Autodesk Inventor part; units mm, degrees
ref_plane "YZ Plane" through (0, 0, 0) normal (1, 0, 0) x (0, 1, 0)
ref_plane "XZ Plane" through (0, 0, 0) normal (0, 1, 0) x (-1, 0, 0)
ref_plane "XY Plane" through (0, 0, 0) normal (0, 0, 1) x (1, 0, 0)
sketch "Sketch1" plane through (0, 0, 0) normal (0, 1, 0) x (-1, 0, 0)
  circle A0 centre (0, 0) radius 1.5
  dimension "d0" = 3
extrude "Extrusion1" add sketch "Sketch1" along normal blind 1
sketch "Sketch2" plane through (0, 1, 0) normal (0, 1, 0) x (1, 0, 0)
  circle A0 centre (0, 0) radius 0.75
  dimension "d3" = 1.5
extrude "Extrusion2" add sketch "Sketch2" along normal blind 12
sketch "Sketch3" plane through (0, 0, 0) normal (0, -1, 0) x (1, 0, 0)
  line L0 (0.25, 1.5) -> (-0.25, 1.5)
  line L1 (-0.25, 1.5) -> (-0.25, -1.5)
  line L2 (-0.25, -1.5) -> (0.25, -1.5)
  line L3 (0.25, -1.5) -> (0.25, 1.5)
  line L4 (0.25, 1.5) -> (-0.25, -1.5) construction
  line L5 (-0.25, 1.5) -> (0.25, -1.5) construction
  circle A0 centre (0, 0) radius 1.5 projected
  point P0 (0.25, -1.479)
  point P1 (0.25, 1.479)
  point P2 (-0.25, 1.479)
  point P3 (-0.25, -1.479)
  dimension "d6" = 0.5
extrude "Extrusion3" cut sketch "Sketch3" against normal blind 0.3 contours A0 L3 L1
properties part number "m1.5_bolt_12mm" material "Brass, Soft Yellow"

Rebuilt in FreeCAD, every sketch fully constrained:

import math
import FreeCAD as App
import Part
import Sketcher
from FreeCAD import Vector
Q = App.Units.Quantity

doc = App.newDocument("Part")
body = doc.addObject("PartDesign::Body", "Body")

sketch1 = body.newObject("Sketcher::SketchObject", "Sketch")
sketch1.AttachmentSupport = (doc.getObject("XZ_Plane"), [""])
sketch1.MapMode = "FlatFace"
sketch1.addGeometry(Part.Circle(Vector(0, 0, 0), Vector(0, 0, 1), 1.5), False)
sketch1.addConstraint([
    Sketcher.Constraint("Coincident", 0, 3, -1, 1),
    Sketcher.Constraint("Diameter", 0, Q("3 mm")),
])
pad1 = body.newObject("PartDesign::Pad", "Pad")
pad1.Profile = sketch1
pad1.Length = 1
pad1.Reversed = True

sketch2 = body.newObject("Sketcher::SketchObject", "Sketch001")
sketch2.AttachmentSupport = (doc.getObject("XZ_Plane"), [""])
sketch2.MapMode = "FlatFace"
sketch2.AttachmentOffset = App.Placement(Vector(0, 0, -1), App.Rotation())
sketch2.addGeometry(Part.Circle(Vector(0, 0, 0), Vector(0, 0, 1), 0.8), False)
sketch2.addConstraint([
    Sketcher.Constraint("Coincident", 0, 3, -1, 1),
    Sketcher.Constraint("Diameter", 0, Q("1.5 mm")),
])
pad2 = body.newObject("PartDesign::Pad", "Pad001")
pad2.Profile = sketch2
pad2.Length = 12
pad2.Reversed = True

sketch3 = body.newObject("Sketcher::SketchObject", "Sketch002")
sketch3.AttachmentSupport = (doc.getObject("XZ_Plane"), [""])
sketch3.MapMode = "FlatFace"
sketch3.addGeometry([
    Part.ArcOfCircle(Part.Circle(Vector(0, 0, 0), Vector(0, 0, 1), 1.5), math.radians(80.41), math.radians(99.59)),
    Part.LineSegment(Vector(-0.2, 1.5, 0), Vector(-0.2, -1.5, 0)),
    Part.ArcOfCircle(Part.Circle(Vector(0, 0, 0), Vector(0, 0, 1), 1.5), math.radians(-99.59), math.radians(-80.41)),
    Part.LineSegment(Vector(0.2, -1.5, 0), Vector(0.2, 1.5, 0)),
], False)
sketch3.addConstraint([
    Sketcher.Constraint("Coincident", 0, 2, 1, 1),
    Sketcher.Constraint("Coincident", 1, 2, 2, 1),
    Sketcher.Constraint("Coincident", 2, 2, 3, 1),
    Sketcher.Constraint("Coincident", 3, 2, 0, 1),
    Sketcher.Constraint("Vertical", 1),
    Sketcher.Constraint("Vertical", 3),
    Sketcher.Constraint("Coincident", 0, 3, -1, 1),
    Sketcher.Constraint("Coincident", 2, 3, -1, 1),
    Sketcher.Constraint("Equal", 0, 2),
    Sketcher.Constraint("Horizontal", 1, 2, 2, 2),
    Sketcher.Constraint("Radius", 0, Q("1.5 mm")),
    Sketcher.Constraint("DistanceX", 1, 2, 2, 2, Q("0.5 mm")),
])
pocket1 = body.newObject("PartDesign::Pocket", "Pocket")
pocket1.Profile = sketch3
pocket1.Length = 0.3

doc.recompute()
